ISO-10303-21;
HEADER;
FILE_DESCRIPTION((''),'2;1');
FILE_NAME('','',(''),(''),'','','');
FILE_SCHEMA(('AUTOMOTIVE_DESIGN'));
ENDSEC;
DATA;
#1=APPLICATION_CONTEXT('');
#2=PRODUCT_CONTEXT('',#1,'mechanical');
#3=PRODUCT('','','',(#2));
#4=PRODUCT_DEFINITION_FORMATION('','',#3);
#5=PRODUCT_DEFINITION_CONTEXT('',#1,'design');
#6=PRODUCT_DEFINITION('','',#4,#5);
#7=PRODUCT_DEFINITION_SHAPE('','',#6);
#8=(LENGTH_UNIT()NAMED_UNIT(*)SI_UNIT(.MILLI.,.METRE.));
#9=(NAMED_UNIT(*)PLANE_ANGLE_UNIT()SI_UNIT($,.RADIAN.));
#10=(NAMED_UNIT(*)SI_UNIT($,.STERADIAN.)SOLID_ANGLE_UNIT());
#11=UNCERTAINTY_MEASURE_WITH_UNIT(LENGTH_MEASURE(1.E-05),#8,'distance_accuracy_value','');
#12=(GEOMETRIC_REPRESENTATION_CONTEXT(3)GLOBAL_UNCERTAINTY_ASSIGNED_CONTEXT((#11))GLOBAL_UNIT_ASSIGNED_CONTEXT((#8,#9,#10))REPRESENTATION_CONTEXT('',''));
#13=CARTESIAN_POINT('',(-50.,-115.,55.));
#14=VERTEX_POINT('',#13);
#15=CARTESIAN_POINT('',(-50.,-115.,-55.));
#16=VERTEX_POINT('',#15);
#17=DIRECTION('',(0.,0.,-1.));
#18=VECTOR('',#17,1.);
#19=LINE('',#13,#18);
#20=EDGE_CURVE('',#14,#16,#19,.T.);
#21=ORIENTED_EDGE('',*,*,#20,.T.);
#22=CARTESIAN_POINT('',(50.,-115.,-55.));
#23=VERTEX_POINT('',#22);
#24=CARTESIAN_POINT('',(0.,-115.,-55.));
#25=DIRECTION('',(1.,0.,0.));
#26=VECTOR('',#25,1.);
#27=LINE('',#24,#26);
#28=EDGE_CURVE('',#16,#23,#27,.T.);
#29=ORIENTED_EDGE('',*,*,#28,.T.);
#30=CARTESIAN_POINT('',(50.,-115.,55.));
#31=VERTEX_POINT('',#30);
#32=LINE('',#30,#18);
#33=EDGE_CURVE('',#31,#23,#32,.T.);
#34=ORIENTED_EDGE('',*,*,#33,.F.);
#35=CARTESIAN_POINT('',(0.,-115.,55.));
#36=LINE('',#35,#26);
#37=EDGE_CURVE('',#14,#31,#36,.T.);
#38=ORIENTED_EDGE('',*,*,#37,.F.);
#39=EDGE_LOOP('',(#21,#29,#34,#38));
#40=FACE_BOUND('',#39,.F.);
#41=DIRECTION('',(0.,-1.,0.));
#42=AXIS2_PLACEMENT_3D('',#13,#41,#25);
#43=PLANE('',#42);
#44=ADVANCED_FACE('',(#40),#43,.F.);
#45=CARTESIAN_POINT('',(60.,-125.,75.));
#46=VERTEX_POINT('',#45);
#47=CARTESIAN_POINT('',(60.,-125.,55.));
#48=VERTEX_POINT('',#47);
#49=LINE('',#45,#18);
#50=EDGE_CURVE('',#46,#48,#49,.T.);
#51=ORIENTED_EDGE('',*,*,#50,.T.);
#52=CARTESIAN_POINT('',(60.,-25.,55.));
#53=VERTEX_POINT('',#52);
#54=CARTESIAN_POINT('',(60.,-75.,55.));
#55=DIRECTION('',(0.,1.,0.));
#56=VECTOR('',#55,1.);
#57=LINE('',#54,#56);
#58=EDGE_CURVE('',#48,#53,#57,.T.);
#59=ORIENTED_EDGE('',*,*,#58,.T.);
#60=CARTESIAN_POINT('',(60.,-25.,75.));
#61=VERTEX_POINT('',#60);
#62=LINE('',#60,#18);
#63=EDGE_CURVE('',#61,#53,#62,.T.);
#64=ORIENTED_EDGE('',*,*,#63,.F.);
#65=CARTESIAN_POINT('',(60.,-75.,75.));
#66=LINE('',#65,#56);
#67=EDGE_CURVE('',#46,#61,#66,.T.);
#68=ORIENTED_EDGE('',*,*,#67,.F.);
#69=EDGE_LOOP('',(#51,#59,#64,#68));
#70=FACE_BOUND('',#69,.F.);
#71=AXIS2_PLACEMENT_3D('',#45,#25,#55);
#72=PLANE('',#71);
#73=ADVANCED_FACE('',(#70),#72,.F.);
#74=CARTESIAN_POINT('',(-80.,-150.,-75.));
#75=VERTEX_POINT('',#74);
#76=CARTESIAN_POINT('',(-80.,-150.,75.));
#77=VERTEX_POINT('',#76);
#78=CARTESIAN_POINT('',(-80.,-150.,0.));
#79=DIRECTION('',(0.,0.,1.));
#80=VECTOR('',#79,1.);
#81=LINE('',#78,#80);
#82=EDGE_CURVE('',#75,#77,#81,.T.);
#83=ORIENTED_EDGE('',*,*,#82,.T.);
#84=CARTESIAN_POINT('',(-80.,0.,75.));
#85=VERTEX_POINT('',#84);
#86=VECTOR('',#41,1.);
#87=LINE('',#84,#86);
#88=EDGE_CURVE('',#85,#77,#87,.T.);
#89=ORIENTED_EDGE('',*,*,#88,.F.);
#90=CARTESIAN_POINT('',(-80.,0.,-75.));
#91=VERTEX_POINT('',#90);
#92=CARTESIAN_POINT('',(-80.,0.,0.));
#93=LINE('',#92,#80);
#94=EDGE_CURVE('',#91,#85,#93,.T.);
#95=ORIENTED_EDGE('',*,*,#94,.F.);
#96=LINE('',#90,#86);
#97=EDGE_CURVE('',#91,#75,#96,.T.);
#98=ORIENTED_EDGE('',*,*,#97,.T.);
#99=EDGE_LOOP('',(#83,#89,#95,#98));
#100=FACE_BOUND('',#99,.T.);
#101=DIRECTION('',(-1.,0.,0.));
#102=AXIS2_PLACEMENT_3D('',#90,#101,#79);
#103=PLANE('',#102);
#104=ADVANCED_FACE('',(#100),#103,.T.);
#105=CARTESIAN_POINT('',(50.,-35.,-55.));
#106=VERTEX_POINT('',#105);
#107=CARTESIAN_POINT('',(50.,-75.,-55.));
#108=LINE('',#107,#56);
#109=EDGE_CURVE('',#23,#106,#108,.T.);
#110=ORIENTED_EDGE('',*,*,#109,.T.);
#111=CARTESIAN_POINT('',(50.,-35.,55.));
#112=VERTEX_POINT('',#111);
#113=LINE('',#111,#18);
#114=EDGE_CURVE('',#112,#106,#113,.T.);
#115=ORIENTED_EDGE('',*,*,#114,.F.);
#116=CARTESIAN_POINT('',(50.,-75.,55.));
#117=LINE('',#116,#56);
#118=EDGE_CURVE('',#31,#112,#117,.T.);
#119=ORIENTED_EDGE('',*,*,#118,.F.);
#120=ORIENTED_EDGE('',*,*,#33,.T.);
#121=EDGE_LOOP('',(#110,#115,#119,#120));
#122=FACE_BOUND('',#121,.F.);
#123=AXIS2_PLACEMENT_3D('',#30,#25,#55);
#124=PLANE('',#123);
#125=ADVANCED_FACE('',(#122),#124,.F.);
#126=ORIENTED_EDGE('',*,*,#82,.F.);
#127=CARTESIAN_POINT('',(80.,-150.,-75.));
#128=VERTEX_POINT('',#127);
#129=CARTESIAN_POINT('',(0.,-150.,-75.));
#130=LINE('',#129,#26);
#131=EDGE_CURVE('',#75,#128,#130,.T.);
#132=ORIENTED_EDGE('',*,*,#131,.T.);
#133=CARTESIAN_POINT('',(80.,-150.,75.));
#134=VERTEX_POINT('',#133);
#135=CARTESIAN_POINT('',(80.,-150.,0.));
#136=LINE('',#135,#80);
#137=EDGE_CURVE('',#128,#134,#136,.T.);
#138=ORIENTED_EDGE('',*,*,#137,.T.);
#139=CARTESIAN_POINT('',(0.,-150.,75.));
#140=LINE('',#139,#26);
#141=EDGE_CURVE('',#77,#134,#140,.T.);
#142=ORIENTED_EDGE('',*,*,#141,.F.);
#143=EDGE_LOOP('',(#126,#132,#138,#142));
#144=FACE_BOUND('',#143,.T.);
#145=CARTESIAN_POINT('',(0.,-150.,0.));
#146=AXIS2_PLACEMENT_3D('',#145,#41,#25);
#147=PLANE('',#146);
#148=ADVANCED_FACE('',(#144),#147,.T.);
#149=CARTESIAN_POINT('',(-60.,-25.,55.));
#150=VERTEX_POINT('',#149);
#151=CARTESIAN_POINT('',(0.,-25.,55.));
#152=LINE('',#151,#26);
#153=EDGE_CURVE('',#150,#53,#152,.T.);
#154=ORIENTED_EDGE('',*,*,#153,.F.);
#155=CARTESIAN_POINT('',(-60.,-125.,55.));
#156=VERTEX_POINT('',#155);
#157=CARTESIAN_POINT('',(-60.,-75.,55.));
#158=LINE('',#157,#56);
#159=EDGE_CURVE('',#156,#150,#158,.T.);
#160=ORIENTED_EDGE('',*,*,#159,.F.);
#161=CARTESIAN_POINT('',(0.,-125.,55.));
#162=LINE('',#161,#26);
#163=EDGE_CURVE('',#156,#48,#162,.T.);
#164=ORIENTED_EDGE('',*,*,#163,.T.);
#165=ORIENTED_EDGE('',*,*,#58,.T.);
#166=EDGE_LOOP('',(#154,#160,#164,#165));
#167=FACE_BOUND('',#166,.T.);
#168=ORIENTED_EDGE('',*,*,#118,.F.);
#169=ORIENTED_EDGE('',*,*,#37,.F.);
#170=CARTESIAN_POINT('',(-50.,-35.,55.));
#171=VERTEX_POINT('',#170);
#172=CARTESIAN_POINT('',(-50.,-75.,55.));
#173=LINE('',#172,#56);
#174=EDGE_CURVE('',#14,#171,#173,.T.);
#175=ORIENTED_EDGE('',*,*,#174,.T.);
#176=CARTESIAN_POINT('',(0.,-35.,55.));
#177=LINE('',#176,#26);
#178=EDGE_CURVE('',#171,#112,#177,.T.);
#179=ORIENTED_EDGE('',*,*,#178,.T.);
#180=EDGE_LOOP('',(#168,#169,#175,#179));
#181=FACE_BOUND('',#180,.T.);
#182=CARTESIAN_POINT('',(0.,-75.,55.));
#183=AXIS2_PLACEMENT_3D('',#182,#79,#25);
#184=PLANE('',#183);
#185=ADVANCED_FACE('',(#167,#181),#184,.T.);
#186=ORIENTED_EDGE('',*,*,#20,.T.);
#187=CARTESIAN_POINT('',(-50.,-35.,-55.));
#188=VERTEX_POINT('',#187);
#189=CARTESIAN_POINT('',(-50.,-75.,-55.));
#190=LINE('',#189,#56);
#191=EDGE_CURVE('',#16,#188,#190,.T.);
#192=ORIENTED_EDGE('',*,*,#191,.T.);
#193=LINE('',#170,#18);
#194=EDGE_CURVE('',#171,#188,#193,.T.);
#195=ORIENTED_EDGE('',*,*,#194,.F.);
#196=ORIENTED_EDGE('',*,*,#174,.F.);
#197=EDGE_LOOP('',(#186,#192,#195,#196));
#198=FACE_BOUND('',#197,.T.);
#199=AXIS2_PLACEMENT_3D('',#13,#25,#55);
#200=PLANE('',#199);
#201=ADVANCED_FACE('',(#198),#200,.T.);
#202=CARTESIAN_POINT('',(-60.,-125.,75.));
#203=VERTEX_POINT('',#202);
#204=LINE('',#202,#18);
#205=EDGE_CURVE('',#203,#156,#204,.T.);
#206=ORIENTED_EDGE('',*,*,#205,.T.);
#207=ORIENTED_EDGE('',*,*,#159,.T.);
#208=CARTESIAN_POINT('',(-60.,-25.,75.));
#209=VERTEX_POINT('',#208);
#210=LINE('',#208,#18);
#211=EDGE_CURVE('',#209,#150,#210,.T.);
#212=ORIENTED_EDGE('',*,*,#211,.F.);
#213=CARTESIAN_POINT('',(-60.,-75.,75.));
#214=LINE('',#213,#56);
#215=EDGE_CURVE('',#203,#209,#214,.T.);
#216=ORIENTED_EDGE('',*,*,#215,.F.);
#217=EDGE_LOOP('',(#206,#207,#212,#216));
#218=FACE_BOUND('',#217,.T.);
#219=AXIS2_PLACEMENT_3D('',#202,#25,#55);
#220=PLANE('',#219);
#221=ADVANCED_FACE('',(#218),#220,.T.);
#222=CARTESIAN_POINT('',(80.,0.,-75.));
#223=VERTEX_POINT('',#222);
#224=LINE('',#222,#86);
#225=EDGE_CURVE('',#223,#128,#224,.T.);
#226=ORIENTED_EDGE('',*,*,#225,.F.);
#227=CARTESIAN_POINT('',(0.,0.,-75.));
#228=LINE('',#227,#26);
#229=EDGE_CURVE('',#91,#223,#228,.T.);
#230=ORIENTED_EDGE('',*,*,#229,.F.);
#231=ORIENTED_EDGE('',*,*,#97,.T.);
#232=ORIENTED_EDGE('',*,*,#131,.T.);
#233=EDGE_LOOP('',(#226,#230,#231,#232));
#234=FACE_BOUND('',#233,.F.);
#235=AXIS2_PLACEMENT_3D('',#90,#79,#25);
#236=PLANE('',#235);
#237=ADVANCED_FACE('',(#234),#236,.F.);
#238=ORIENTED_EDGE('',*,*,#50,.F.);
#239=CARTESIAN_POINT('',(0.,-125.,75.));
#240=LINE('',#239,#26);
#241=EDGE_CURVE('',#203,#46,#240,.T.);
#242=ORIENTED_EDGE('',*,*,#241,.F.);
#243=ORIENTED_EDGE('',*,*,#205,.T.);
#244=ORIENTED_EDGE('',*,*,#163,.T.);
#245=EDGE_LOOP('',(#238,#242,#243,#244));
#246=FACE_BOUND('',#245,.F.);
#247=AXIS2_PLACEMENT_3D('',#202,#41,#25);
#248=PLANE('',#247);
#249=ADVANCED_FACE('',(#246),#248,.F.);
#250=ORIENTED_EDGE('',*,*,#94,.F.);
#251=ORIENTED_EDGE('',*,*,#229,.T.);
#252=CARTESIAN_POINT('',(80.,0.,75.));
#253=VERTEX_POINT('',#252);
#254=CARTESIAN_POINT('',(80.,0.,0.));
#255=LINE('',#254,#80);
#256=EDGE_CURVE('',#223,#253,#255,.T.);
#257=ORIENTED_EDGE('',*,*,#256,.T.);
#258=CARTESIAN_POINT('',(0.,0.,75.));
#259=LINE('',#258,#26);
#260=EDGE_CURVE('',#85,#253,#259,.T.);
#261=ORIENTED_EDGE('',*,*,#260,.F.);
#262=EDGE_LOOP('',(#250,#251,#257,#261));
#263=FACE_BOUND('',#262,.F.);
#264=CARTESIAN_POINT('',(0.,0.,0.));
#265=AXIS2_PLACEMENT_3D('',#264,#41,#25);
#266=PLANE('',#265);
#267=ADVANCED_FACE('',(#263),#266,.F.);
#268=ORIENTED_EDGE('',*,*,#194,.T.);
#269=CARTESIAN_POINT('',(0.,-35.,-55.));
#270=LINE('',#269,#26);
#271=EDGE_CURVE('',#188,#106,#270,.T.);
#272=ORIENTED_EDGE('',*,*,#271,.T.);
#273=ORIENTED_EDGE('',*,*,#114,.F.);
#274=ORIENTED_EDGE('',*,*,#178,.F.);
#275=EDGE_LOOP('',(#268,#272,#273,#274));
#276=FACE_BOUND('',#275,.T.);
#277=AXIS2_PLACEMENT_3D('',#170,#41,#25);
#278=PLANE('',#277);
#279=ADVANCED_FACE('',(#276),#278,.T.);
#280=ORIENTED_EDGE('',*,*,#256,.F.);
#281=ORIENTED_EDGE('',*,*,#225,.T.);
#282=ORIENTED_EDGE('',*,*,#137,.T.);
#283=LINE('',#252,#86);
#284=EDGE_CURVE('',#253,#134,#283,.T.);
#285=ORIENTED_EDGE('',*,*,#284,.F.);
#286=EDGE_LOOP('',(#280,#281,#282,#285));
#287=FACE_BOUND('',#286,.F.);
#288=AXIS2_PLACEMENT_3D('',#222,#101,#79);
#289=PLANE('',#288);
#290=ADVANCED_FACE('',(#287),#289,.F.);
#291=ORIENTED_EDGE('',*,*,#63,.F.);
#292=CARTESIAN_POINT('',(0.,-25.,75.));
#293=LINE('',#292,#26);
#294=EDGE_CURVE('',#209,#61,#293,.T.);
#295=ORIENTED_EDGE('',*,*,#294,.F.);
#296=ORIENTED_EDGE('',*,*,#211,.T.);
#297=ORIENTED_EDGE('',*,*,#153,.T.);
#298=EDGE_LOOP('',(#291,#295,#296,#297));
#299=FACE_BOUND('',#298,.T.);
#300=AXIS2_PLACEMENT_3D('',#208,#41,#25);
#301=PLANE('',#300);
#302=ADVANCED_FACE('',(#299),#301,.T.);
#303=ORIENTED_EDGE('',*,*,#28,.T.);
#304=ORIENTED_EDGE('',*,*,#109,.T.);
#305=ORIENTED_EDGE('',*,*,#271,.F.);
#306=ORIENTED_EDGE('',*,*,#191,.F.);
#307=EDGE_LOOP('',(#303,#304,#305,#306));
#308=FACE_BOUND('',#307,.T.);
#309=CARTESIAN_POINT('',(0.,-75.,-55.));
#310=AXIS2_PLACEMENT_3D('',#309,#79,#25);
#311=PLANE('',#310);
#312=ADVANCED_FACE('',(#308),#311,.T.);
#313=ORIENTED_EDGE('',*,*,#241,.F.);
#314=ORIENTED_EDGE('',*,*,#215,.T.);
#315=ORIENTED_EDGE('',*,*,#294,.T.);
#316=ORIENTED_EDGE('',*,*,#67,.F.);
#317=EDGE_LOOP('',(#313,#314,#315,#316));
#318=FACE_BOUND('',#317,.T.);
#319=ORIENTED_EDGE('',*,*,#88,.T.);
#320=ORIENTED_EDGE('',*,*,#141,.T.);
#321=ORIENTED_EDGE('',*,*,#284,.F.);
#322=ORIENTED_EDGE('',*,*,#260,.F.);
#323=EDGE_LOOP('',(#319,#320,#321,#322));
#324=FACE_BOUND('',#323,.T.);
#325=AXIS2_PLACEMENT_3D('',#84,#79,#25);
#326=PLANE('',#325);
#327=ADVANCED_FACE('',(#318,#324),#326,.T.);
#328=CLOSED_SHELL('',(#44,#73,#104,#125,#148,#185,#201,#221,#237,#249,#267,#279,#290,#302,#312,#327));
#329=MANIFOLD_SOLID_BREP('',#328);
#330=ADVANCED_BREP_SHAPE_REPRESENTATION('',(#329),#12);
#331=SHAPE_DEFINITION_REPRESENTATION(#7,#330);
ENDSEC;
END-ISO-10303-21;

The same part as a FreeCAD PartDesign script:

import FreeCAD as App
import Part
import Sketcher
from FreeCAD import Vector
Q = App.Units.Quantity

doc = App.newDocument("Part")
body = doc.addObject("PartDesign::Body", "Body")

sketch1 = body.newObject("Sketcher::SketchObject", "Sketch")
sketch1.AttachmentSupport = (doc.getObject("XZ_Plane"), [""])
sketch1.MapMode = "FlatFace"
sketch1.addGeometry([
    Part.LineSegment(Vector(-80, 75, 0), Vector(-80, -75, 0)),
    Part.LineSegment(Vector(-80, -75, 0), Vector(80, -75, 0)),
    Part.LineSegment(Vector(80, -75, 0), Vector(80, 75, 0)),
    Part.LineSegment(Vector(80, 75, 0), Vector(-80, 75, 0)),
], False)
sketch1.addConstraint([
    Sketcher.Constraint("Coincident", 0, 2, 1, 1),
    Sketcher.Constraint("Coincident", 1, 2, 2, 1),
    Sketcher.Constraint("Coincident", 2, 2, 3, 1),
    Sketcher.Constraint("Coincident", 3, 2, 0, 1),
    Sketcher.Constraint("Vertical", 0),
    Sketcher.Constraint("Horizontal", 1),
    Sketcher.Constraint("Vertical", 2),
    Sketcher.Constraint("Horizontal", 3),
    Sketcher.Constraint("Symmetric", 0, 2, 2, 2, -1, 1),
    Sketcher.Constraint("DistanceX", 1, 1, 1, 2, Q("160 mm")),
    Sketcher.Constraint("DistanceY", 0, 2, 0, 1, Q("150 mm")),
])
pad1 = body.newObject("PartDesign::Pad", "Pad")
pad1.Profile = sketch1
pad1.Length = 150

sketch2 = body.newObject("Sketcher::SketchObject", "Sketch001")
sketch2.AttachmentSupport = (doc.getObject("XY_Plane"), [""])
sketch2.MapMode = "FlatFace"
sketch2.AttachmentOffset = App.Placement(Vector(0, 0, 75), App.Rotation())
sketch2.addGeometry([
    Part.LineSegment(Vector(-60, -25, 0), Vector(-60, -125, 0)),
    Part.LineSegment(Vector(-60, -125, 0), Vector(60, -125, 0)),
    Part.LineSegment(Vector(60, -125, 0), Vector(60, -25, 0)),
    Part.LineSegment(Vector(60, -25, 0), Vector(-60, -25, 0)),
], False)
sketch2.addConstraint([
    Sketcher.Constraint("Coincident", 0, 2, 1, 1),
    Sketcher.Constraint("Coincident", 1, 2, 2, 1),
    Sketcher.Constraint("Coincident", 2, 2, 3, 1),
    Sketcher.Constraint("Coincident", 3, 2, 0, 1),
    Sketcher.Constraint("Vertical", 0),
    Sketcher.Constraint("Horizontal", 1),
    Sketcher.Constraint("Vertical", 2),
    Sketcher.Constraint("Horizontal", 3),
    Sketcher.Constraint("DistanceX", 1, 1, 1, 2, Q("120 mm")),
    Sketcher.Constraint("DistanceY", 0, 2, 0, 1, Q("100 mm")),
    Sketcher.Constraint("DistanceX", 0, 2, -1, 1, Q("60 mm")),
    Sketcher.Constraint("DistanceY", 0, 2, -1, 1, Q("125 mm")),
])
pocket1 = body.newObject("PartDesign::Pocket", "Pocket")
pocket1.Profile = sketch2
pocket1.Length = 20

sketch3 = body.newObject("Sketcher::SketchObject", "Sketch002")
sketch3.AttachmentSupport = (doc.getObject("XY_Plane"), [""])
sketch3.MapMode = "FlatFace"
sketch3.AttachmentOffset = App.Placement(Vector(0, 0, 55), App.Rotation())
sketch3.addGeometry([
    Part.LineSegment(Vector(-50, -35, 0), Vector(-50, -115, 0)),
    Part.LineSegment(Vector(-50, -115, 0), Vector(50, -115, 0)),
    Part.LineSegment(Vector(50, -115, 0), Vector(50, -35, 0)),
    Part.LineSegment(Vector(50, -35, 0), Vector(-50, -35, 0)),
], False)
sketch3.addConstraint([
    Sketcher.Constraint("Coincident", 0, 2, 1, 1),
    Sketcher.Constraint("Coincident", 1, 2, 2, 1),
    Sketcher.Constraint("Coincident", 2, 2, 3, 1),
    Sketcher.Constraint("Coincident", 3, 2, 0, 1),
    Sketcher.Constraint("Vertical", 0),
    Sketcher.Constraint("Horizontal", 1),
    Sketcher.Constraint("Vertical", 2),
    Sketcher.Constraint("Horizontal", 3),
    Sketcher.Constraint("DistanceX", 1, 1, 1, 2, Q("100 mm")),
    Sketcher.Constraint("DistanceY", 0, 2, 0, 1, Q("80 mm")),
    Sketcher.Constraint("DistanceX", 0, 2, -1, 1, Q("50 mm")),
    Sketcher.Constraint("DistanceY", 0, 2, -1, 1, Q("115 mm")),
])
pocket2 = body.newObject("PartDesign::Pocket", "Pocket001")
pocket2.Profile = sketch3
pocket2.Length = 110

doc.recompute()
